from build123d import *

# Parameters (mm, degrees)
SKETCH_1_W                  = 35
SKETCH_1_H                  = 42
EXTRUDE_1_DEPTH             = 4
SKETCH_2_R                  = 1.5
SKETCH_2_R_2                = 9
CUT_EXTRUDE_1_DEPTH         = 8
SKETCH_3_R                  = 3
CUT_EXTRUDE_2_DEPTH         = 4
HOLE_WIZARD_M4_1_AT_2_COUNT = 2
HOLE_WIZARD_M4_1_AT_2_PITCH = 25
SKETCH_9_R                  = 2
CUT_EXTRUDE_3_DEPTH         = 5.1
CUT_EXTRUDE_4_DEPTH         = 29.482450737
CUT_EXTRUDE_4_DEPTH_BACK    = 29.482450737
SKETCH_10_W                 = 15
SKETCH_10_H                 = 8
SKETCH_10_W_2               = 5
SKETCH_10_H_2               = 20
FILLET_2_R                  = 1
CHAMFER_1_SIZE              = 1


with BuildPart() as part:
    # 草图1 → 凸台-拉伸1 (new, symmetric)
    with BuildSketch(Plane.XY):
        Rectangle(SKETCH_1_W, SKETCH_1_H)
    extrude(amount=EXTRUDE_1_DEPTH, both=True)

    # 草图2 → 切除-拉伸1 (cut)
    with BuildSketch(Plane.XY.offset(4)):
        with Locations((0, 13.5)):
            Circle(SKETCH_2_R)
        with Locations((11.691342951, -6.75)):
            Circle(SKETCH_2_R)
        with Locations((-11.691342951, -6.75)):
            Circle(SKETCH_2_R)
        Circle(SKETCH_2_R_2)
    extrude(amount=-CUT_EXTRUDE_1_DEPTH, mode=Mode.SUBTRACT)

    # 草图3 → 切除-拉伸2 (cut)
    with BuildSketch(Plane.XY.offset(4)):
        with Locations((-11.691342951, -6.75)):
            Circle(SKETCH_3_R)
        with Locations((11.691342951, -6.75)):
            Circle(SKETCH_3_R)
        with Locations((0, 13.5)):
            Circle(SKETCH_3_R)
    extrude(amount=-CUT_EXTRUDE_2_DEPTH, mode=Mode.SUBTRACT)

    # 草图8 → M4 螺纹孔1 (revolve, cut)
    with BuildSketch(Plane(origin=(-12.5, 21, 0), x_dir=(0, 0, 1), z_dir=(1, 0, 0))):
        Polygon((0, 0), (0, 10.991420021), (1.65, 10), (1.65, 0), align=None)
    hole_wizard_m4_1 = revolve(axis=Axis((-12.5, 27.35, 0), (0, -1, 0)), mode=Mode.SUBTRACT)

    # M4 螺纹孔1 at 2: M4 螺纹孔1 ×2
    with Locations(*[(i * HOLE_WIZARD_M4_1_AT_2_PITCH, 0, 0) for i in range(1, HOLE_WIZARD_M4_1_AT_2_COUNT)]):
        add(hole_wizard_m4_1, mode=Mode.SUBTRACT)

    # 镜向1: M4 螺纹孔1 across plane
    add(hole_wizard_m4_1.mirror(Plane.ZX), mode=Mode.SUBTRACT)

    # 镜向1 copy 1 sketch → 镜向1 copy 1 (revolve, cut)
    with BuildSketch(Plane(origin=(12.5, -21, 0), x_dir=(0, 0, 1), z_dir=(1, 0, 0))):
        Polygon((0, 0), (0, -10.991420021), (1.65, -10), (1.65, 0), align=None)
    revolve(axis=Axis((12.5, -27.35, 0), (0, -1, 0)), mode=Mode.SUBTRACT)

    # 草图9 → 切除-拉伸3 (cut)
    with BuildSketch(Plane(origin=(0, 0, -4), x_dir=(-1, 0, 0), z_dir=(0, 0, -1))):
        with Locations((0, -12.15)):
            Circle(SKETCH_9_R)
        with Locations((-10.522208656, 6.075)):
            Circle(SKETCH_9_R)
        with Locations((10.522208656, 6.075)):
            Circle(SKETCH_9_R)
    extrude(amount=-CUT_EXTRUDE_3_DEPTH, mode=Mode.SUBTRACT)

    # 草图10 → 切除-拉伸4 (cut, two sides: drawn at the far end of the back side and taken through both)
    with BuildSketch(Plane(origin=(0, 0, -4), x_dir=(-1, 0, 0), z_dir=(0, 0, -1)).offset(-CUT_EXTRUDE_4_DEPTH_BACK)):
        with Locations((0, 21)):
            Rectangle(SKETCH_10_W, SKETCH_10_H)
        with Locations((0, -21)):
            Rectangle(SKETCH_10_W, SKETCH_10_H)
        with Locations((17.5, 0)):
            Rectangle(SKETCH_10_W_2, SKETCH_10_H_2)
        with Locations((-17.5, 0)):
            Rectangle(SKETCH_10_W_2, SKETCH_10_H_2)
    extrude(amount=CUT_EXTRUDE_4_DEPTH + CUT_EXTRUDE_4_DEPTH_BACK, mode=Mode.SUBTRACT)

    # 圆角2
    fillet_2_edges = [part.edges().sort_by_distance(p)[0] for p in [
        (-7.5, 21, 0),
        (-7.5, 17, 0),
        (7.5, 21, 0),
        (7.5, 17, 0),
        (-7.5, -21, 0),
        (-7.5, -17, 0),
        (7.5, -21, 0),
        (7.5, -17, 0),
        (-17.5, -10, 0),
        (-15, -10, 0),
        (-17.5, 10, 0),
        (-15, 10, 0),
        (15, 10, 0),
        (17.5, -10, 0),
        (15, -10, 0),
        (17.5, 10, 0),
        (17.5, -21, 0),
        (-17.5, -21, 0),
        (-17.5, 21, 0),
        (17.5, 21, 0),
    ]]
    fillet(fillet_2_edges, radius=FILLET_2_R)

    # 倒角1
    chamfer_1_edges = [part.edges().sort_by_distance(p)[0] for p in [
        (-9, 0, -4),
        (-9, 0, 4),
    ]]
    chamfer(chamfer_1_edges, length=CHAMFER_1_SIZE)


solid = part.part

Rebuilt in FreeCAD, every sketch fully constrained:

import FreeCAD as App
import Part
import Sketcher
Q = App.Units.Quantity


def edges_at(feature, points):
    """Names of the edges that pass closest to the given points."""
    edges = feature.Shape.Edges
    near = lambda p: min(range(len(edges)), key=lambda i: edges[i].distToShape(Part.Vertex(*p))[0])
    return sorted({f"Edge{near(p) + 1}" for p in points})

doc = App.newDocument("Part")
params = doc.addObject("Spreadsheet::Sheet", "Params")
for row, (alias, value) in enumerate([
    ("sketch1_width", "35 mm"),
    ("sketch1_height", "42 mm"),
    ("pad1_length", "8 mm"),
    ("sketch2_diameter", "3 mm"),
    ("sketch2_diameter2", "18 mm"),
    ("pocket1_length", "8 mm"),
    ("sketch3_diameter", "6 mm"),
    ("pocket2_length", "4 mm"),
    ("sketch4_width", "10 mm"),
    ("sketch4_height", "1.65 mm"),
    ("groove_angle", "360 deg"),
    ("linearpattern_pitch", "25 mm"),
    ("sketch5_width", "10 mm"),
    ("sketch5_height", "1.65 mm"),
    ("groove2_angle", "360 deg"),
    ("sketch6_diameter", "4 mm"),
    ("pocket3_length", "5.1 mm"),
    ("sketch7_width", "15 mm"),
    ("sketch7_width2", "5 mm"),
    ("sketch7_height", "8 mm"),
    ("sketch7_height2", "20 mm"),
    ("fillet_radius", "1 mm"),
    ("chamfer_size", "1 mm"),
], start=1):
    params.set(f"A{row}", alias)
    params.set(f"B{row}", "=" + value)
    params.setAlias(f"B{row}", alias)

body = doc.addObject("PartDesign::Body", "Body")

# Sketch on XY plane
sketch1 = doc.addObject("Sketcher::SketchObject", "Sketch")
body.addObject(sketch1)
sketch1.AttachmentSupport = (doc.XY_Plane, [""])
sketch1.MapMode = "FlatFace"
sketch1.addGeometry([
    Part.LineSegment(App.Vector(-18, 21, 0), App.Vector(-18, -21, 0)),
    Part.LineSegment(App.Vector(-18, -21, 0), App.Vector(18, -21, 0)),
    Part.LineSegment(App.Vector(18, -21, 0), App.Vector(18, 21, 0)),
    Part.LineSegment(App.Vector(18, 21, 0), App.Vector(-18, 21, 0)),
], False)
sketch1.addConstraint([
    Sketcher.Constraint("Coincident", 0, 2, 1, 1),
    Sketcher.Constraint("Coincident", 1, 2, 2, 1),
    Sketcher.Constraint("Coincident", 2, 2, 3, 1),
    Sketcher.Constraint("Coincident", 3, 2, 0, 1),
    Sketcher.Constraint("Vertical", 0),
    Sketcher.Constraint("Horizontal", 1),
    Sketcher.Constraint("Vertical", 2),
    Sketcher.Constraint("Horizontal", 3),
    Sketcher.Constraint("Symmetric", 0, 2, 2, 2, -1, 1),
    Sketcher.Constraint("DistanceX", 1, 1, 1, 2, 35.0),
    Sketcher.Constraint("DistanceY", 0, 2, 0, 1, 42.0),
])
sketch1.setExpression("Constraints[9]", "Params.sketch1_width")
sketch1.setExpression("Constraints[10]", "Params.sketch1_height")
pad1 = doc.addObject("PartDesign::Pad", "Pad")
body.addObject(pad1)
pad1.Profile = sketch1
pad1.setExpression("Length", "Params.pad1_length")
pad1.Midplane = True

# Sketch on XY plane
sketch2 = doc.addObject("Sketcher::SketchObject", "Sketch001")
body.addObject(sketch2)
sketch2.AttachmentSupport = (doc.XY_Plane, [""])
sketch2.MapMode = "FlatFace"
sketch2.AttachmentOffset = App.Placement(App.Vector(0, 0, 4), App.Rotation())
sketch2.addGeometry([
    Part.Circle(App.Vector(0, 13.5, 0), App.Vector(0, 0, 1), 1.5),
    Part.Circle(App.Vector(11.7, -6.8, 0), App.Vector(0, 0, 1), 1.5),
    Part.Circle(App.Vector(-11.7, -6.8, 0), App.Vector(0, 0, 1), 1.5),
    Part.Circle(App.Vector(0, 0, 0), App.Vector(0, 0, 1), 9),
], False)
sketch2.addConstraint([
    Sketcher.Constraint("Coincident", 3, 3, -1, 1),
    Sketcher.Constraint("Equal", 0, 1),
    Sketcher.Constraint("Equal", 1, 2),
    Sketcher.Constraint("Symmetric", 1, 3, 2, 3, -2),
    Sketcher.Constraint("PointOnObject", 0, 3, -2),
    Sketcher.Constraint("Diameter", 0, 3.0),
    Sketcher.Constraint("Diameter", 3, 18.0),
    Sketcher.Constraint("DistanceY", -1, 1, 0, 3, 13.5),
    Sketcher.Constraint("DistanceY", 1, 3, -1, 1, 6.75),
    Sketcher.Constraint("DistanceX", -1, 1, 1, 3, 11.691343),
])
sketch2.setExpression("Constraints[5]", "Params.sketch2_diameter")
sketch2.setExpression("Constraints[6]", "Params.sketch2_diameter2")
pocket1 = doc.addObject("PartDesign::Pocket", "Pocket")
body.addObject(pocket1)
pocket1.Profile = sketch2
pocket1.setExpression("Length", "Params.pocket1_length")

# Sketch on XY plane
sketch3 = doc.addObject("Sketcher::SketchObject", "Sketch002")
body.addObject(sketch3)
sketch3.AttachmentSupport = (doc.XY_Plane, [""])
sketch3.MapMode = "FlatFace"
sketch3.AttachmentOffset = App.Placement(App.Vector(0, 0, 4), App.Rotation())
sketch3.addGeometry([
    Part.Circle(App.Vector(-11.7, -6.8, 0), App.Vector(0, 0, 1), 3),
    Part.Circle(App.Vector(11.7, -6.8, 0), App.Vector(0, 0, 1), 3),
    Part.Circle(App.Vector(0, 13.5, 0), App.Vector(0, 0, 1), 3),
], False)
sketch3.addConstraint([
    Sketcher.Constraint("Equal", 0, 1),
    Sketcher.Constraint("Equal", 1, 2),
    Sketcher.Constraint("Symmetric", 0, 3, 1, 3, -2),
    Sketcher.Constraint("PointOnObject", 2, 3, -2),
    Sketcher.Constraint("Diameter", 0, 6.0),
    Sketcher.Constraint("DistanceY", -1, 1, 2, 3, 13.5),
    Sketcher.Constraint("DistanceY", 0, 3, -1, 1, 6.75),
    Sketcher.Constraint("DistanceX", 0, 3, -1, 1, 11.691343),
])
sketch3.setExpression("Constraints[4]", "Params.sketch3_diameter")
pocket2 = doc.addObject("PartDesign::Pocket", "Pocket001")
body.addObject(pocket2)
pocket2.Profile = sketch3
pocket2.setExpression("Length", "Params.pocket2_length")

# Sketch on YZ plane
sketch4 = doc.addObject("Sketcher::SketchObject", "Sketch003")
body.addObject(sketch4)
sketch4.AttachmentSupport = (doc.YZ_Plane, [""])
sketch4.MapMode = "FlatFace"
sketch4.AttachmentOffset = App.Placement(App.Vector(0, 0, -12.5), App.Rotation())
sketch4.addGeometry([
    Part.LineSegment(App.Vector(10, 0, 0), App.Vector(21, 0, 0)),
    Part.LineSegment(App.Vector(21, 0, 0), App.Vector(21, 1.6, 0)),
    Part.LineSegment(App.Vector(21, 1.6, 0), App.Vector(11, 1.6, 0)),
    Part.LineSegment(App.Vector(11, 1.6, 0), App.Vector(10, 0, 0)),
], False)
sketch4.addConstraint([
    Sketcher.Constraint("Coincident", 0, 2, 1, 1),
    Sketcher.Constraint("Coincident", 1, 2, 2, 1),
    Sketcher.Constraint("Coincident", 2, 2, 3, 1),
    Sketcher.Constraint("Coincident", 3, 2, 0, 1),
    Sketcher.Constraint("Horizontal", 0),
    Sketcher.Constraint("Vertical", 1),
    Sketcher.Constraint("Horizontal", 2),
    Sketcher.Constraint("PointOnObject", 0, 2, -1),
    Sketcher.Constraint("DistanceX", 2, 2, 2, 1, 10.0),
    Sketcher.Constraint("Angle", 3, Q("-121 deg")),
    Sketcher.Constraint("DistanceX", -1, 1, 0, 2, 21.0),
    Sketcher.Constraint("DistanceY", 1, 1, 1, 2, 1.65),
])
sketch4.setExpression("Constraints[8]", "Params.sketch4_width")
sketch4.setExpression("Constraints[11]", "Params.sketch4_height")
groove = doc.addObject("PartDesign::Groove", "Groove")
body.addObject(groove)
groove.Profile = sketch4
groove.ReferenceAxis = (sketch4, ["H_Axis"])
groove.setExpression("Angle", "Params.groove_angle")
doc.recompute()

linearpattern = doc.addObject("PartDesign::LinearPattern", "LinearPattern")
body.addObject(linearpattern)
linearpattern.Originals = [groove]
linearpattern.Direction = (doc.X_Axis, [""])
linearpattern.Mode = "offset"
linearpattern.setExpression("Offset", "Params.linearpattern_pitch")
linearpattern.Occurrences = 2
body.Tip = linearpattern
doc.recompute()

mirrored = doc.addObject("PartDesign::Mirrored", "Mirrored")
body.addObject(mirrored)
mirrored.Originals = [groove]
mirrored.MirrorPlane = (doc.XZ_Plane, [""])
body.Tip = mirrored

# Sketch on YZ plane
sketch5 = doc.addObject("Sketcher::SketchObject", "Sketch004")
body.addObject(sketch5)
sketch5.AttachmentSupport = (doc.YZ_Plane, [""])
sketch5.MapMode = "FlatFace"
sketch5.AttachmentOffset = App.Placement(App.Vector(0, 0, 12.5), App.Rotation())
sketch5.addGeometry([
    Part.LineSegment(App.Vector(-21, 0, 0), App.Vector(-10, 0, 0)),
    Part.LineSegment(App.Vector(-10, 0, 0), App.Vector(-11, 1.6, 0)),
    Part.LineSegment(App.Vector(-11, 1.6, 0), App.Vector(-21, 1.6, 0)),
    Part.LineSegment(App.Vector(-21, 1.6, 0), App.Vector(-21, 0, 0)),
], False)
sketch5.addConstraint([
    Sketcher.Constraint("Coincident", 0, 2, 1, 1),
    Sketcher.Constraint("Coincident", 1, 2, 2, 1),
    Sketcher.Constraint("Coincident", 2, 2, 3, 1),
    Sketcher.Constraint("Coincident", 3, 2, 0, 1),
    Sketcher.Constraint("Horizontal", 0),
    Sketcher.Constraint("Horizontal", 2),
    Sketcher.Constraint("Vertical", 3),
    Sketcher.Constraint("PointOnObject", 0, 2, -1),
    Sketcher.Constraint("DistanceX", 2, 2, 2, 1, 10.0),
    Sketcher.Constraint("Angle", 1, Q("121 deg")),
    Sketcher.Constraint("DistanceX", 1, 2, -1, 1, 11.0),
    Sketcher.Constraint("DistanceY", 3, 2, 3, 1, 1.65),
])
sketch5.setExpression("Constraints[8]", "Params.sketch5_width")
sketch5.setExpression("Constraints[11]", "Params.sketch5_height")
groove2 = doc.addObject("PartDesign::Groove", "Groove001")
body.addObject(groove2)
groove2.Profile = sketch5
groove2.ReferenceAxis = (sketch5, ["H_Axis"])
groove2.setExpression("Angle", "Params.groove2_angle")

# Sketch on XY plane
sketch6 = doc.addObject("Sketcher::SketchObject", "Sketch005")
body.addObject(sketch6)
sketch6.AttachmentSupport = (doc.XY_Plane, [""])
sketch6.MapMode = "FlatFace"
sketch6.AttachmentOffset = App.Placement(App.Vector(0, 0, -4), App.Rotation())
sketch6.addGeometry([
    Part.Circle(App.Vector(0, -12.2, 0), App.Vector(0, 0, 1), 2),
    Part.Circle(App.Vector(10.5, 6.1, 0), App.Vector(0, 0, 1), 2),
    Part.Circle(App.Vector(-10.5, 6.1, 0), App.Vector(0, 0, 1), 2),
], False)
sketch6.addConstraint([
    Sketcher.Constraint("Equal", 0, 1),
    Sketcher.Constraint("Equal", 1, 2),
    Sketcher.Constraint("Symmetric", 1, 3, 2, 3, -2),
    Sketcher.Constraint("PointOnObject", 0, 3, -2),
    Sketcher.Constraint("Diameter", 0, 4.0),
    Sketcher.Constraint("DistanceY", 0, 3, -1, 1, 12.15),
    Sketcher.Constraint("DistanceY", -1, 1, 1, 3, 6.075),
    Sketcher.Constraint("DistanceX", -1, 1, 1, 3, 10.522209),
])
sketch6.setExpression("Constraints[4]", "Params.sketch6_diameter")
pocket3 = doc.addObject("PartDesign::Pocket", "Pocket002")
body.addObject(pocket3)
pocket3.Profile = sketch6
pocket3.setExpression("Length", "Params.pocket3_length")
pocket3.Reversed = True

# Sketch on XY plane
sketch7 = doc.addObject("Sketcher::SketchObject", "Sketch006")
body.addObject(sketch7)
sketch7.AttachmentSupport = (doc.XY_Plane, [""])
sketch7.MapMode = "FlatFace"
sketch7.AttachmentOffset = App.Placement(App.Vector(0, 0, -4), App.Rotation())
sketch7.addGeometry([
    Part.LineSegment(App.Vector(8, 25, 0), App.Vector(8, 17, 0)),  # 0
    Part.LineSegment(App.Vector(8, 17, 0), App.Vector(-8, 17, 0)),  # 1
    Part.LineSegment(App.Vector(-8, 17, 0), App.Vector(-8, 25, 0)),  # 2
    Part.LineSegment(App.Vector(-8, 25, 0), App.Vector(8, 25, 0)),  # 3
    Part.LineSegment(App.Vector(8, -17, 0), App.Vector(8, -25, 0)),  # 4
    Part.LineSegment(App.Vector(8, -25, 0), App.Vector(-8, -25, 0)),  # 5
    Part.LineSegment(App.Vector(-8, -25, 0), App.Vector(-8, -17, 0)),  # 6
    Part.LineSegment(App.Vector(-8, -17, 0), App.Vector(8, -17, 0)),  # 7
    Part.LineSegment(App.Vector(-15, 10, 0), App.Vector(-15, -10, 0)),  # 8
    Part.LineSegment(App.Vector(-15, -10, 0), App.Vector(-20, -10, 0)),  # 9
    Part.LineSegment(App.Vector(-20, -10, 0), App.Vector(-20, 10, 0)),  # 10
    Part.LineSegment(App.Vector(-20, 10, 0), App.Vector(-15, 10, 0)),  # 11
    Part.LineSegment(App.Vector(20, 10, 0), App.Vector(20, -10, 0)),  # 12
    Part.LineSegment(App.Vector(20, -10, 0), App.Vector(15, -10, 0)),  # 13
    Part.LineSegment(App.Vector(15, -10, 0), App.Vector(15, 10, 0)),  # 14
    Part.LineSegment(App.Vector(15, 10, 0), App.Vector(20, 10, 0)),  # 15
], False)
sketch7.addConstraint([
    Sketcher.Constraint("Coincident", 0, 2, 1, 1),
    Sketcher.Constraint("Coincident", 1, 2, 2, 1),
    Sketcher.Constraint("Coincident", 2, 2, 3, 1),
    Sketcher.Constraint("Coincident", 3, 2, 0, 1),
    Sketcher.Constraint("Coincident", 4, 2, 5, 1),
    Sketcher.Constraint("Coincident", 5, 2, 6, 1),
    Sketcher.Constraint("Coincident", 6, 2, 7, 1),
    Sketcher.Constraint("Coincident", 7, 2, 4, 1),
    Sketcher.Constraint("Coincident", 8, 2, 9, 1),
    Sketcher.Constraint("Coincident", 9, 2, 10, 1),
    Sketcher.Constraint("Coincident", 10, 2, 11, 1),
    Sketcher.Constraint("Coincident", 11, 2, 8, 1),
    Sketcher.Constraint("Coincident", 12, 2, 13, 1),
    Sketcher.Constraint("Coincident", 13, 2, 14, 1),
    Sketcher.Constraint("Coincident", 14, 2, 15, 1),
    Sketcher.Constraint("Coincident", 15, 2, 12, 1),
    Sketcher.Constraint("Vertical", 0),
    Sketcher.Constraint("Horizontal", 1),
    Sketcher.Constraint("Vertical", 2),
    Sketcher.Constraint("Horizontal", 3),
    Sketcher.Constraint("Vertical", 4),
    Sketcher.Constraint("Horizontal", 5),
    Sketcher.Constraint("Vertical", 6),
    Sketcher.Constraint("Horizontal", 7),
    Sketcher.Constraint("Vertical", 8),
    Sketcher.Constraint("Horizontal", 9),
    Sketcher.Constraint("Vertical", 10),
    Sketcher.Constraint("Horizontal", 11),
    Sketcher.Constraint("Vertical", 12),
    Sketcher.Constraint("Horizontal", 13),
    Sketcher.Constraint("Vertical", 14),
    Sketcher.Constraint("Horizontal", 15),
    Sketcher.Constraint("Symmetric", 2, 2, 4, 2, -1, 1),
    Sketcher.Constraint("Symmetric", 0, 2, 6, 2, -1, 1),
    Sketcher.Constraint("Symmetric", 10, 2, 12, 2, -1, 1),
    Sketcher.Constraint("Symmetric", 8, 2, 14, 2, -1, 1),
    Sketcher.Constraint("Horizontal", 9, 2, 12, 2),
    Sketcher.Constraint("Vertical", 3, 2, 4, 2),
    Sketcher.Constraint("DistanceX", 1, 2, 1, 1, 15.0),
    Sketcher.Constraint("DistanceX", 9, 2, 9, 1, 5.0),
    Sketcher.Constraint("DistanceY", 0, 2, 0, 1, 8.0),
    Sketcher.Constraint("DistanceY", 8, 2, 8, 1, 20.0),
    Sketcher.Constraint("DistanceY", -1, 1, 0, 2, 17.0),
    Sketcher.Constraint("DistanceX", 8, 2, -1, 1, 15.0),
])
sketch7.setExpression("Constraints[38]", "Params.sketch7_width")
sketch7.setExpression("Constraints[39]", "Params.sketch7_width2")
sketch7.setExpression("Constraints[40]", "Params.sketch7_height")
sketch7.setExpression("Constraints[41]", "Params.sketch7_height2")
pocket4 = doc.addObject("PartDesign::Pocket", "Pocket003")
body.addObject(pocket4)
pocket4.Profile = sketch7
pocket4.Type = "ThroughAll"
pocket4.Midplane = True
doc.recompute()

fillet = doc.addObject("PartDesign::Fillet", "Fillet")
body.addObject(fillet)
fillet.Base = (pocket4, edges_at(pocket4, [
    (-7.5, 21, 0),
    (-7.5, 17, 0),
    (7.5, 21, 0),
    (7.5, 17, 0),
    (-7.5, -21, 0),
    (-7.5, -17, 0),
    (7.5, -21, 0),
    (7.5, -17, 0),
    (-17.5, -10, 0),
    (-15, -10, 0),
    (-17.5, 10, 0),
    (-15, 10, 0),
    (15, 10, 0),
    (17.5, -10, 0),
    (15, -10, 0),
    (17.5, 10, 0),
    (17.5, -21, 0),
    (-17.5, -21, 0),
    (-17.5, 21, 0),
    (17.5, 21, 0),
]))
fillet.setExpression("Radius", "Params.fillet_radius")
doc.recompute()

chamfer = doc.addObject("PartDesign::Chamfer", "Chamfer")
body.addObject(chamfer)
chamfer.Base = (fillet, edges_at(fillet, [(-9, 0, -4), (-9, 0, 4)]))
chamfer.setExpression("Size", "Params.chamfer_size")

doc.recompute()
